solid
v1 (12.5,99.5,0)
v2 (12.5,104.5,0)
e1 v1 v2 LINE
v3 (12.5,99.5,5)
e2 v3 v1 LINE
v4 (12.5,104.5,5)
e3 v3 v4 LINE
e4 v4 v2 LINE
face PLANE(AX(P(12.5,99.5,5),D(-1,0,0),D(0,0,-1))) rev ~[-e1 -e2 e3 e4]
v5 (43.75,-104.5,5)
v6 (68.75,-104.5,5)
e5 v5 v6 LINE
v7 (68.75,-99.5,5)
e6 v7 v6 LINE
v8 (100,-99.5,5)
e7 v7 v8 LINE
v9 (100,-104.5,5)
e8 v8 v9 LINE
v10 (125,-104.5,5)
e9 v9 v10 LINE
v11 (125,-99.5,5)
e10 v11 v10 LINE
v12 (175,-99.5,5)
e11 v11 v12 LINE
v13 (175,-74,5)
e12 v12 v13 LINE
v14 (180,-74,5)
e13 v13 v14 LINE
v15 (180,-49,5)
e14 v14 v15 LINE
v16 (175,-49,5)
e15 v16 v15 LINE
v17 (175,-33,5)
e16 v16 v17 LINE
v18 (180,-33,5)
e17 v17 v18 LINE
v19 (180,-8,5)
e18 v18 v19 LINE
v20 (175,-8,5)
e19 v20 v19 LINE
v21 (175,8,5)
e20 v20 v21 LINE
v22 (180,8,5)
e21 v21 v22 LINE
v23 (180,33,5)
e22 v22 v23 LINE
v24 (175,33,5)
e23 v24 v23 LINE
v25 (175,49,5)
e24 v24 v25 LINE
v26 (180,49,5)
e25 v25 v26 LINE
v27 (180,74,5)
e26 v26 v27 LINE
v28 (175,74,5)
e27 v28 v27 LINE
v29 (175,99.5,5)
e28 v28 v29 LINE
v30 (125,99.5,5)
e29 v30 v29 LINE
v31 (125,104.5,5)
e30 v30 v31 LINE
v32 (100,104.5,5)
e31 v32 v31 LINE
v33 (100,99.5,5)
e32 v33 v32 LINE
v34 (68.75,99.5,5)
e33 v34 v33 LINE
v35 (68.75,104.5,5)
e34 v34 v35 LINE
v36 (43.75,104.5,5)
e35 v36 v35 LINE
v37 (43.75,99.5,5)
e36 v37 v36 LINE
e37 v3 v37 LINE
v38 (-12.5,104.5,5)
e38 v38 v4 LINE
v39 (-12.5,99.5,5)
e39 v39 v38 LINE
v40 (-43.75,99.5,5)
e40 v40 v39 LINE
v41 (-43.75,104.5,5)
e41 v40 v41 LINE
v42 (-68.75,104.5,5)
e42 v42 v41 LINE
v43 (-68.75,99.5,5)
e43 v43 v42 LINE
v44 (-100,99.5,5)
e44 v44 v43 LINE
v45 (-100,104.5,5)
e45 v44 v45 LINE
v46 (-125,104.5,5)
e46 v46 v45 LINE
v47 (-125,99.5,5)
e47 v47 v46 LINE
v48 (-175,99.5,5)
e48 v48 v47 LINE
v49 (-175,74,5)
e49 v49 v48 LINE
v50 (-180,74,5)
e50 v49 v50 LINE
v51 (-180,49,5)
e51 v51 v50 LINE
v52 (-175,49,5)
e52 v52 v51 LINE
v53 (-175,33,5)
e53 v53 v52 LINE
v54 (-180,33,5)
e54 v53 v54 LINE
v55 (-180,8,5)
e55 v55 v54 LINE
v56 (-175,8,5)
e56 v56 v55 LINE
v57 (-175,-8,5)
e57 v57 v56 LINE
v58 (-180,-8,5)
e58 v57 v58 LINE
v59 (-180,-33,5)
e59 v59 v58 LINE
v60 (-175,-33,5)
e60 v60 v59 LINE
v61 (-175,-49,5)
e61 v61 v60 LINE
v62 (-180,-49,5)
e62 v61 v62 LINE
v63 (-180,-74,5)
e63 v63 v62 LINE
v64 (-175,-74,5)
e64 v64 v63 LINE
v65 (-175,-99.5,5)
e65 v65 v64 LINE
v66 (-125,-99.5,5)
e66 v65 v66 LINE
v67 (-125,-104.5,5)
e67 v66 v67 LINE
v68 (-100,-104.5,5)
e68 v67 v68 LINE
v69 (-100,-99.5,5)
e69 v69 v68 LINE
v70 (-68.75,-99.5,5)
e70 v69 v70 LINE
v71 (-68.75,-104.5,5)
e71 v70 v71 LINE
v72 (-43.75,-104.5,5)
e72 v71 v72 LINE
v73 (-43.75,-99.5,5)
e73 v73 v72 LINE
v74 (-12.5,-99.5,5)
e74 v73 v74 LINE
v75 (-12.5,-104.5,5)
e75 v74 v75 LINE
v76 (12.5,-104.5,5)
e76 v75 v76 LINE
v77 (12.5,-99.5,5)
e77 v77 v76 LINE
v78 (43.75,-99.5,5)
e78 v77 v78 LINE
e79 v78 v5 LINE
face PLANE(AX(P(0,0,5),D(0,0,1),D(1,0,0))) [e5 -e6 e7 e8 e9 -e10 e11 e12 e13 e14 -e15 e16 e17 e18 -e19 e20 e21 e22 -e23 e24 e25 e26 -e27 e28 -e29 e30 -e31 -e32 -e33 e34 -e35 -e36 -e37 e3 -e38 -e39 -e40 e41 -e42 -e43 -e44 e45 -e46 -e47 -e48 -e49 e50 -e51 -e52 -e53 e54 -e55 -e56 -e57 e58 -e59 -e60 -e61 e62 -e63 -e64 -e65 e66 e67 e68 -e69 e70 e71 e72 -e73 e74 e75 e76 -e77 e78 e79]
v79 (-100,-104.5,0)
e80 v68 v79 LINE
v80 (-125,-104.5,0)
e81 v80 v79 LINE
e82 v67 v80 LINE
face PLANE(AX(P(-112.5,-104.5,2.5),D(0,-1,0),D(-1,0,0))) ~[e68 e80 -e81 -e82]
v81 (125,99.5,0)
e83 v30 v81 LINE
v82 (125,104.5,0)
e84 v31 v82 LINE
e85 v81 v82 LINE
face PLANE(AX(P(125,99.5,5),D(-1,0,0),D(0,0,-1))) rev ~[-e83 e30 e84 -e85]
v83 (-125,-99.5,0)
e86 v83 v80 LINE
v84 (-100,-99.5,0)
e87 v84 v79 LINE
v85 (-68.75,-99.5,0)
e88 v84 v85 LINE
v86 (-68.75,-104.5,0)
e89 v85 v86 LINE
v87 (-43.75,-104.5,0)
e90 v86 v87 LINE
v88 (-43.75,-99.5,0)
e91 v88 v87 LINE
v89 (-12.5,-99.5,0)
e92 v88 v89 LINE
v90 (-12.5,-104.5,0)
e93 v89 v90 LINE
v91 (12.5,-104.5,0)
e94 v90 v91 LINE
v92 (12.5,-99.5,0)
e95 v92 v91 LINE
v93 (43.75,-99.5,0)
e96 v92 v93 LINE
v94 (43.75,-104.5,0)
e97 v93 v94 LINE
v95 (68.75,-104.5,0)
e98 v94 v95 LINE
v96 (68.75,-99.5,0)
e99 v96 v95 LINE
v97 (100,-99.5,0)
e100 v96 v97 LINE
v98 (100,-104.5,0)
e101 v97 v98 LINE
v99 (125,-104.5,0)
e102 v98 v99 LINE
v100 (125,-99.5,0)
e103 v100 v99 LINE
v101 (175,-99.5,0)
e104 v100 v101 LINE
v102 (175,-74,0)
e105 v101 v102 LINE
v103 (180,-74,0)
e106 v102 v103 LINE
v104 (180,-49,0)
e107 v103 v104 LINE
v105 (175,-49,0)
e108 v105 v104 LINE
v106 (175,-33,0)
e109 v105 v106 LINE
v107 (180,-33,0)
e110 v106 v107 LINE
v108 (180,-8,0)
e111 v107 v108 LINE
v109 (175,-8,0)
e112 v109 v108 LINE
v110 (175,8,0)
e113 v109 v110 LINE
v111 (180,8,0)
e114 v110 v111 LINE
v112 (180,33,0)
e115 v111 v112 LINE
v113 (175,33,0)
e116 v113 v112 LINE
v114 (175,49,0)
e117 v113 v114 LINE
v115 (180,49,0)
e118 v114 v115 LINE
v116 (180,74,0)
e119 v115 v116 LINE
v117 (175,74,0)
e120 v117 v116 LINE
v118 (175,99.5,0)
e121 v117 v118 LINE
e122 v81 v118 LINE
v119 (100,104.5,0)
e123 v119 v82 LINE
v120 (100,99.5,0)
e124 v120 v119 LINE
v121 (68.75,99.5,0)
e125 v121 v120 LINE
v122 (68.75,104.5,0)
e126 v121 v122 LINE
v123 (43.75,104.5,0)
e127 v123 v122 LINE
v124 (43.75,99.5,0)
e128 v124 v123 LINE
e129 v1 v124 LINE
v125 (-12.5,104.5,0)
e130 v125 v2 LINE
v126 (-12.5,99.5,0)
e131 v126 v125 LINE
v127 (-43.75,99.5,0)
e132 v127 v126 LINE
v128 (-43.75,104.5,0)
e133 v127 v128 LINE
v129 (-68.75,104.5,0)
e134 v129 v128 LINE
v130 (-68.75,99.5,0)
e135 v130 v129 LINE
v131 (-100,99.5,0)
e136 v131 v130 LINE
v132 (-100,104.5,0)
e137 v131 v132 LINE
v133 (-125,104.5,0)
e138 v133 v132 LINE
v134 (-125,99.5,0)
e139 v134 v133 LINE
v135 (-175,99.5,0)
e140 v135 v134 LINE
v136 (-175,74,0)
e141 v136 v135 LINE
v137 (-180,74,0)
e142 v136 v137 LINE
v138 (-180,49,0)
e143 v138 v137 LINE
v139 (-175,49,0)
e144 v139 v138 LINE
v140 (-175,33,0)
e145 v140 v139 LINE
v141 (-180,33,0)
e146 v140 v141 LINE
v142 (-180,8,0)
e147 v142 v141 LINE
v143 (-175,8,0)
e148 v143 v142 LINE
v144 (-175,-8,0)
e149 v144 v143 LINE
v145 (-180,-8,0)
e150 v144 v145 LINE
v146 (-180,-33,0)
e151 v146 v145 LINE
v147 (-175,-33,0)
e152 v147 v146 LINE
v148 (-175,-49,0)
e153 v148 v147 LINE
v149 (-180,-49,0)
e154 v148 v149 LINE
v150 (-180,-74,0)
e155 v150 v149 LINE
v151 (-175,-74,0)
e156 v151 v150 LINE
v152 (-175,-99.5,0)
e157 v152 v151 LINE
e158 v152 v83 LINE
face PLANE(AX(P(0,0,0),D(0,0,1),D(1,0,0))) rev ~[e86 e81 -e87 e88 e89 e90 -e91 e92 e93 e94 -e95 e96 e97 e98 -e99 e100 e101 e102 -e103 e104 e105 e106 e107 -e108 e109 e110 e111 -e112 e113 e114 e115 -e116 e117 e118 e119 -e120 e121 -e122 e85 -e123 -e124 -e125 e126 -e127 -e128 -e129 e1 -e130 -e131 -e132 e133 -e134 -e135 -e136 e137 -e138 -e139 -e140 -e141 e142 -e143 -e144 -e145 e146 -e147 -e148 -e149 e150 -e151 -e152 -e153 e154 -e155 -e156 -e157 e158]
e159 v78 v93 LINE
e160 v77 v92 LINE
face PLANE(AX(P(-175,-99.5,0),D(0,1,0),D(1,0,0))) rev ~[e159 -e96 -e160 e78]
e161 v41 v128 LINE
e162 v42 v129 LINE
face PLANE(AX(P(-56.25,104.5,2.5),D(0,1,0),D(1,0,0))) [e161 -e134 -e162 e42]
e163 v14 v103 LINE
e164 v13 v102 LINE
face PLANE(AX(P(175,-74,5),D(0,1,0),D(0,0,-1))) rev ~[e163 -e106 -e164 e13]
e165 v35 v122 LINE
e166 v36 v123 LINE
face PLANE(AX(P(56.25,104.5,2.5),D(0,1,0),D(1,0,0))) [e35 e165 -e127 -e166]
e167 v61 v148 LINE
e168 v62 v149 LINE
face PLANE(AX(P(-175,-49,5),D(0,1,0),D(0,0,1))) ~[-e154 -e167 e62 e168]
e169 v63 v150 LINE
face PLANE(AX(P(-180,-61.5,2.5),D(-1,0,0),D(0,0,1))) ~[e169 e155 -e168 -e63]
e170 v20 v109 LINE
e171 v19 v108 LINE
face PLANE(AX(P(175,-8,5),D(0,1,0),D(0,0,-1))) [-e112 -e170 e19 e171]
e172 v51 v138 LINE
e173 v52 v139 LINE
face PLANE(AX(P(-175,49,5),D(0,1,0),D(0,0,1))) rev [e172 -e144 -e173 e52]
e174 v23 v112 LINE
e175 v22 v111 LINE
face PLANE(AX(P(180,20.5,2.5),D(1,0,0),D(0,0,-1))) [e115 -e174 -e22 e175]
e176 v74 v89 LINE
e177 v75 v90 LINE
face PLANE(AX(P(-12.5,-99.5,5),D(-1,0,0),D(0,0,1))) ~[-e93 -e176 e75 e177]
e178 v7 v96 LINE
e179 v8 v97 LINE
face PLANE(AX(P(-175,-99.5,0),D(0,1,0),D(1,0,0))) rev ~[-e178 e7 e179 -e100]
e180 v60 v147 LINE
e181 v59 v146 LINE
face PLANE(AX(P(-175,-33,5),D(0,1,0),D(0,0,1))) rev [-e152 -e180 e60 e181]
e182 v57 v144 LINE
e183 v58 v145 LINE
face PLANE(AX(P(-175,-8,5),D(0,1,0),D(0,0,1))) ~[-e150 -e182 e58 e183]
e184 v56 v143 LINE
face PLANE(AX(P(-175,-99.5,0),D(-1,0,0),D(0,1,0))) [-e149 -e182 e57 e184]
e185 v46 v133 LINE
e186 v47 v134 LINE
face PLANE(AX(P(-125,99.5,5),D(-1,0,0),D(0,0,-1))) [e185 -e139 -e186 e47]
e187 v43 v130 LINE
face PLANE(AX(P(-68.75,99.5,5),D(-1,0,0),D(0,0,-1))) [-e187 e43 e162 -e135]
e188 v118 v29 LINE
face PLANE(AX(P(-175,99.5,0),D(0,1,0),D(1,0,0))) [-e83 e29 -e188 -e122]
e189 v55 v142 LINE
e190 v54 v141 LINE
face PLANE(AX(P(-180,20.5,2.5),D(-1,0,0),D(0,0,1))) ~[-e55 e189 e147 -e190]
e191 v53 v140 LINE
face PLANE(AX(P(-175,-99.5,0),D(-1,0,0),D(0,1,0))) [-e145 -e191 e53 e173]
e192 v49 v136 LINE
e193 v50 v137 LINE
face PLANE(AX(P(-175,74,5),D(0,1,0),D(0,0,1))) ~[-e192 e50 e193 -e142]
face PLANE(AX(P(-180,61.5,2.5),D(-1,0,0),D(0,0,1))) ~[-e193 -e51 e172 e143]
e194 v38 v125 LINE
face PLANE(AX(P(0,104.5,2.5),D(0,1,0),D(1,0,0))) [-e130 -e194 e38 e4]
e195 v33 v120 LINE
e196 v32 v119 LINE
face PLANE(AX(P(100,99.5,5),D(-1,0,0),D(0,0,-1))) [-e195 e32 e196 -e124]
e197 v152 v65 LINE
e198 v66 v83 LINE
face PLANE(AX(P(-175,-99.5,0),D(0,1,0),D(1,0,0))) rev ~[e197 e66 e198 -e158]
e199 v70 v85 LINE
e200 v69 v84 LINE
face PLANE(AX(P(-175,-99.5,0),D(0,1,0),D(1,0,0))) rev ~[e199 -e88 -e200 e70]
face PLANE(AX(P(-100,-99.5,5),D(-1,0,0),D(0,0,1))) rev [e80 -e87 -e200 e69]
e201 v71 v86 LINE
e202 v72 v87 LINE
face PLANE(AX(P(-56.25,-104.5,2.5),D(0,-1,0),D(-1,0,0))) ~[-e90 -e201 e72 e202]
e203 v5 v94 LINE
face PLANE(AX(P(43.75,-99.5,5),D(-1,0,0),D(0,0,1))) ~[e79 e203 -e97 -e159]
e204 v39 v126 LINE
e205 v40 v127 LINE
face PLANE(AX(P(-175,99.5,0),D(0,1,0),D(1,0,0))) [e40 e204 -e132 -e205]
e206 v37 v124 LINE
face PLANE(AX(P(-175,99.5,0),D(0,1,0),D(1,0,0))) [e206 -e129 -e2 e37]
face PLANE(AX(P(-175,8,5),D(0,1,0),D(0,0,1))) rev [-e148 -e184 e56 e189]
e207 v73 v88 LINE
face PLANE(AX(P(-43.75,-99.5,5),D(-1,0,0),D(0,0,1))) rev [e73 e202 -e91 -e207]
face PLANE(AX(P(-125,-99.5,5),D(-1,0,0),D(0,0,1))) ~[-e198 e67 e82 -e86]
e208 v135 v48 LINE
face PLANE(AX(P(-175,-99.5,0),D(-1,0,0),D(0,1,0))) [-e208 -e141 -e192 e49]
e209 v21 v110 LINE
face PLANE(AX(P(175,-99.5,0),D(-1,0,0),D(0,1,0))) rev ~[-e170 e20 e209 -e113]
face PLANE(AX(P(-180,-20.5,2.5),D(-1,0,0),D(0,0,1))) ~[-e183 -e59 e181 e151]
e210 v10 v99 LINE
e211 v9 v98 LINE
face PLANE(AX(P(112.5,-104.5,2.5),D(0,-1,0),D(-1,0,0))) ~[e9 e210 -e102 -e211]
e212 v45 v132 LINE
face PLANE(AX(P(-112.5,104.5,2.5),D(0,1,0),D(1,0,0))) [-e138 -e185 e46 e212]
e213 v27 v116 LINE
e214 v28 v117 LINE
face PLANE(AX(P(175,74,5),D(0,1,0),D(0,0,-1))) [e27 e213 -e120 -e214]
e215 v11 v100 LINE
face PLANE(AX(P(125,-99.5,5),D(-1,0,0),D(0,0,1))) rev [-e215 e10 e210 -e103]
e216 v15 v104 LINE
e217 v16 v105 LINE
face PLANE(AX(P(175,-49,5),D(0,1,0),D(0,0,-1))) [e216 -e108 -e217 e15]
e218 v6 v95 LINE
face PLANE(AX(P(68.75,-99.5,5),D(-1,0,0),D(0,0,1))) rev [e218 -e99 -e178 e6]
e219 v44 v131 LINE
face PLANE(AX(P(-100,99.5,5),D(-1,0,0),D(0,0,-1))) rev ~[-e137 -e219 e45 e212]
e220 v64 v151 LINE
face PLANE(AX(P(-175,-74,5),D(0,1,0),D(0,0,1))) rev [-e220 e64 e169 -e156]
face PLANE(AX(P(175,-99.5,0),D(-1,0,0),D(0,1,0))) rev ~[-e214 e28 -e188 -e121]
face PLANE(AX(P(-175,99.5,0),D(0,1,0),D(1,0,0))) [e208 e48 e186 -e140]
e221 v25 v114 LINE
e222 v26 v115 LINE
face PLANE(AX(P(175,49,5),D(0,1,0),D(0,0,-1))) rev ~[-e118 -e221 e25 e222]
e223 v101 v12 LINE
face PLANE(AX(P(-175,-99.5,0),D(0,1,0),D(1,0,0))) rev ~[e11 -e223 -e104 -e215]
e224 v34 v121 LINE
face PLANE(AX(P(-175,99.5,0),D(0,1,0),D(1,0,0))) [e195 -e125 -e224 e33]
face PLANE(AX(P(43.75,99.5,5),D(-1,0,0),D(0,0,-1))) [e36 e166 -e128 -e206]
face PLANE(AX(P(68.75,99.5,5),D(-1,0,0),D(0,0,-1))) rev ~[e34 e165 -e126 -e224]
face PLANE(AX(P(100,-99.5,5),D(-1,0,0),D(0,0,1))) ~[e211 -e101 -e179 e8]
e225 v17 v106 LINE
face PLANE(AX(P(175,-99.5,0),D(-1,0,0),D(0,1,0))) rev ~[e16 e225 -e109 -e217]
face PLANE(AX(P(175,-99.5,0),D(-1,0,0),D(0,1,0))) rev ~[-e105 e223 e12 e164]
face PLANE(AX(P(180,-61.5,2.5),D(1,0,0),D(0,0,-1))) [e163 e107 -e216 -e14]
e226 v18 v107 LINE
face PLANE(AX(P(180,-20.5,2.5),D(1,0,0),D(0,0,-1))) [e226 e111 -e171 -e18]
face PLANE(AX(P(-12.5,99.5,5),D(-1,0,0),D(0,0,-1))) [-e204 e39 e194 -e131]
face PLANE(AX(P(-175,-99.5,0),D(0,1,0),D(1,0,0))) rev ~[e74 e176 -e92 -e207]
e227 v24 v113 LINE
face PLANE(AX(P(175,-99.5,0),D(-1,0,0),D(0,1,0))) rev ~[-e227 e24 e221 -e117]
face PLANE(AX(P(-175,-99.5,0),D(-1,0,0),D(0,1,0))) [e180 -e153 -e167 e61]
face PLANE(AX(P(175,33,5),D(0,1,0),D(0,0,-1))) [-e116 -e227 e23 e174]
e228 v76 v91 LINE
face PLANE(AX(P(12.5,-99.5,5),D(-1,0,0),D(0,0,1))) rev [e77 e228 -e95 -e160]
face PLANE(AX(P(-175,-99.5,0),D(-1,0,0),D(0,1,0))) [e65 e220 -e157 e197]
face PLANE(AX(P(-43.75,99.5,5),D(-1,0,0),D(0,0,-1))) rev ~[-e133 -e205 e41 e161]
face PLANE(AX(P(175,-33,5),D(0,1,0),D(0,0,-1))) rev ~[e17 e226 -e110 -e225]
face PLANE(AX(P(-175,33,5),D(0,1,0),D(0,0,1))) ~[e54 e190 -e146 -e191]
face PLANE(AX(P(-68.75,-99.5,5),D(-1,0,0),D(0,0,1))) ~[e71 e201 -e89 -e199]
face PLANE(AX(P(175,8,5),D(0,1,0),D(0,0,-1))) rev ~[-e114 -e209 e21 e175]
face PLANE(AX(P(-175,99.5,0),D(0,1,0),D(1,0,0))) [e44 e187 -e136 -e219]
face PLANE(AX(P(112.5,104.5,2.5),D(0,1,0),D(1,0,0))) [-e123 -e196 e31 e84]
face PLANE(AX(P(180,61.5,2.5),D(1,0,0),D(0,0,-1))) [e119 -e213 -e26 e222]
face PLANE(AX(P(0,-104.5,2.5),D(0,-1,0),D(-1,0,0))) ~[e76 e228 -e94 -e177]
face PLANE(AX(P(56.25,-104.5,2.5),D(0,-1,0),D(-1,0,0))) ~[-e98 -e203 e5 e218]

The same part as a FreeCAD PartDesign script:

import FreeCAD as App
import Part
import Sketcher

V = App.Vector


def add_polygon(sketch, points):
    """Adds a closed chain of lines whose ends are joined by coincident constraints."""
    first, n = sketch.GeometryCount, len(points)
    for a, b in zip(points, points[1:] + points[:1]):
        sketch.addGeometry(Part.LineSegment(App.Vector(*a, 0), App.Vector(*b, 0)), False)
    for i in range(n):
        sketch.addConstraint(Sketcher.Constraint("Coincident", first + i, 2, first + (i + 1) % n, 1))

doc = App.newDocument("Part")
body = doc.addObject("PartDesign::Body", "Body")

sketch1 = body.newObject("Sketcher::SketchObject", "Sketch")
sketch1.AttachmentSupport = (doc.getObject("XY_Plane"), [""])
sketch1.MapMode = "FlatFace"
add_polygon(sketch1, [(-175, 100), (-175, -100), (175, -100), (175, 100)])
sketch1.addConstraint(Sketcher.Constraint("Vertical", 0))
sketch1.addConstraint(Sketcher.Constraint("Horizontal", 1))
sketch1.addConstraint(Sketcher.Constraint("Vertical", 2))
sketch1.addConstraint(Sketcher.Constraint("Horizontal", 3))
sketch1.addConstraint(Sketcher.Constraint("Symmetric", 0, 2, 2, 2, -1, 1))
sketch1.addConstraint(Sketcher.Constraint("DistanceX", 1, 1, 1, 2, 350.0))
sketch1.addConstraint(Sketcher.Constraint("DistanceY", 0, 2, 0, 1, 199.0))
pad1 = body.newObject("PartDesign::Pad", "Pad")
pad1.Profile = sketch1
pad1.Length = 5

sketch2 = body.newObject("Sketcher::SketchObject", "Sketch001")
sketch2.AttachmentSupport = (doc.getObject("YZ_Plane"), [""])
sketch2.MapMode = "FlatFace"
sketch2.AttachmentOffset = App.Placement(V(0, 0, 175), App.Rotation())
add_polygon(sketch2, [(74, 5), (49, 5), (49, 0), (74, 0)])
add_polygon(sketch2, [(33, 5), (8, 5), (8, 0), (33, 0)])
add_polygon(sketch2, [(-8, 5), (-33, 5), (-33, 0), (-8, 0)])
add_polygon(sketch2, [(-49, 5), (-74, 5), (-74, 0), (-49, 0)])
sketch2.addConstraint(Sketcher.Constraint("Horizontal", 0))
sketch2.addConstraint(Sketcher.Constraint("Vertical", 1))
sketch2.addConstraint(Sketcher.Constraint("Horizontal", 2))
sketch2.addConstraint(Sketcher.Constraint("Vertical", 3))
sketch2.addConstraint(Sketcher.Constraint("Horizontal", 4))
sketch2.addConstraint(Sketcher.Constraint("Vertical", 5))
sketch2.addConstraint(Sketcher.Constraint("Horizontal", 6))
sketch2.addConstraint(Sketcher.Constraint("Vertical", 7))
sketch2.addConstraint(Sketcher.Constraint("Horizontal", 8))
sketch2.addConstraint(Sketcher.Constraint("Vertical", 9))
sketch2.addConstraint(Sketcher.Constraint("Horizontal", 10))
sketch2.addConstraint(Sketcher.Constraint("Vertical", 11))
sketch2.addConstraint(Sketcher.Constraint("Horizontal", 12))
sketch2.addConstraint(Sketcher.Constraint("Vertical", 13))
sketch2.addConstraint(Sketcher.Constraint("Horizontal", 14))
sketch2.addConstraint(Sketcher.Constraint("Vertical", 15))
sketch2.addConstraint(Sketcher.Constraint("Symmetric", 6, 2, 9, 2, -1, 1))
sketch2.addConstraint(Sketcher.Constraint("Symmetric", 2, 2, 13, 2, -1, 1))
sketch2.addConstraint(Sketcher.Constraint("Symmetric", 5, 2, 10, 2, -2))
sketch2.addConstraint(Sketcher.Constraint("Symmetric", 1, 2, 14, 2, -2))
sketch2.addConstraint(Sketcher.Constraint("Horizontal", 3, 2, 4, 2))
sketch2.addConstraint(Sketcher.Constraint("Horizontal", 7, 2, 8, 2))
sketch2.addConstraint(Sketcher.Constraint("Horizontal", 11, 2, 12, 2))
sketch2.addConstraint(Sketcher.Constraint("Equal", 2, 4))
sketch2.addConstraint(Sketcher.Constraint("DistanceX", 0, 2, 0, 1, 25.0))
sketch2.addConstraint(Sketcher.Constraint("DistanceY", 1, 2, 1, 1, 5.0))
sketch2.addConstraint(Sketcher.Constraint("DistanceX", -1, 1, 0, 2, 49.0))
sketch2.addConstraint(Sketcher.Constraint("DistanceX", -1, 1, 4, 2, 8.0))
pad2 = body.newObject("PartDesign::Pad", "Pad001")
pad2.Profile = sketch2
pad2.Length = 5
doc.recompute()

mirrored = body.newObject("PartDesign::Mirrored", "Mirrored")
mirrored.Originals = [pad2]
mirrored.MirrorPlane = (doc.getObject("YZ_Plane"), [""])
body.Tip = mirrored

sketch3 = body.newObject("Sketcher::SketchObject", "Sketch002")
sketch3.AttachmentSupport = (doc.getObject("XZ_Plane"), [""])
sketch3.MapMode = "FlatFace"
sketch3.AttachmentOffset = App.Placement(V(0, 0, -99.5), App.Rotation())
add_polygon(sketch3, [(-125, 0), (-125, 5), (-100, 5), (-100, 0)])
add_polygon(sketch3, [(-69, 0), (-69, 5), (-44, 5), (-44, 0)])
add_polygon(sketch3, [(-12, 0), (-12, 5), (12, 5), (12, 0)])
add_polygon(sketch3, [(44, 0), (44, 5), (69, 5), (69, 0)])
add_polygon(sketch3, [(100, 0), (100, 5), (125, 5), (125, 0)])
sketch3.addConstraint(Sketcher.Constraint("Vertical", 0))
sketch3.addConstraint(Sketcher.Constraint("Horizontal", 1))
sketch3.addConstraint(Sketcher.Constraint("Vertical", 2))
sketch3.addConstraint(Sketcher.Constraint("Horizontal", 3))
sketch3.addConstraint(Sketcher.Constraint("Vertical", 4))
sketch3.addConstraint(Sketcher.Constraint("Horizontal", 5))
sketch3.addConstraint(Sketcher.Constraint("Vertical", 6))
sketch3.addConstraint(Sketcher.Constraint("Horizontal", 7))
sketch3.addConstraint(Sketcher.Constraint("Vertical", 8))
sketch3.addConstraint(Sketcher.Constraint("Horizontal", 9))
sketch3.addConstraint(Sketcher.Constraint("Vertical", 10))
sketch3.addConstraint(Sketcher.Constraint("Horizontal", 11))
sketch3.addConstraint(Sketcher.Constraint("Vertical", 12))
sketch3.addConstraint(Sketcher.Constraint("Horizontal", 13))
sketch3.addConstraint(Sketcher.Constraint("Vertical", 14))
sketch3.addConstraint(Sketcher.Constraint("Horizontal", 15))
sketch3.addConstraint(Sketcher.Constraint("Vertical", 16))
sketch3.addConstraint(Sketcher.Constraint("Horizontal", 17))
sketch3.addConstraint(Sketcher.Constraint("Vertical", 18))
sketch3.addConstraint(Sketcher.Constraint("Horizontal", 19))
sketch3.addConstraint(Sketcher.Constraint("Symmetric", 10, 2, 11, 2, -1, 1))
sketch3.addConstraint(Sketcher.Constraint("Symmetric", 7, 2, 14, 2, -1, 1))
sketch3.addConstraint(Sketcher.Constraint("Symmetric", 3, 2, 18, 2, -1, 1))
sketch3.addConstraint(Sketcher.Constraint("Symmetric", 5, 2, 12, 2, -2))
sketch3.addConstraint(Sketcher.Constraint("Symmetric", 1, 2, 16, 2, -2))
sketch3.addConstraint(Sketcher.Constraint("PointOnObject", 2, 2, -1))
sketch3.addConstraint(Sketcher.Constraint("PointOnObject", 6, 2, -1))
sketch3.addConstraint(Sketcher.Constraint("Horizontal", 1, 2, 4, 2))
sketch3.addConstraint(Sketcher.Constraint("Horizontal", 5, 2, 8, 2))
sketch3.addConstraint(Sketcher.Constraint("Equal", 3, 5))
sketch3.addConstraint(Sketcher.Constraint("Equal", 7, 9))
sketch3.addConstraint(Sketcher.Constraint("DistanceX", 1, 1, 1, 2, 25.0))
sketch3.addConstraint(Sketcher.Constraint("DistanceY", 0, 1, 0, 2, 5.0))
sketch3.addConstraint(Sketcher.Constraint("DistanceX", 0, 2, -1, 1, 125.0))
sketch3.addConstraint(Sketcher.Constraint("DistanceX", 5, 2, 12, 2, 87.5))
pad3 = body.newObject("PartDesign::Pad", "Pad002")
pad3.Profile = sketch3
pad3.Length = 5
pad3.Reversed = True
doc.recompute()

mirrored2 = body.newObject("PartDesign::Mirrored", "Mirrored001")
mirrored2.Originals = [pad3]
mirrored2.MirrorPlane = (doc.getObject("XZ_Plane"), [""])
body.Tip = mirrored2

doc.recompute()
